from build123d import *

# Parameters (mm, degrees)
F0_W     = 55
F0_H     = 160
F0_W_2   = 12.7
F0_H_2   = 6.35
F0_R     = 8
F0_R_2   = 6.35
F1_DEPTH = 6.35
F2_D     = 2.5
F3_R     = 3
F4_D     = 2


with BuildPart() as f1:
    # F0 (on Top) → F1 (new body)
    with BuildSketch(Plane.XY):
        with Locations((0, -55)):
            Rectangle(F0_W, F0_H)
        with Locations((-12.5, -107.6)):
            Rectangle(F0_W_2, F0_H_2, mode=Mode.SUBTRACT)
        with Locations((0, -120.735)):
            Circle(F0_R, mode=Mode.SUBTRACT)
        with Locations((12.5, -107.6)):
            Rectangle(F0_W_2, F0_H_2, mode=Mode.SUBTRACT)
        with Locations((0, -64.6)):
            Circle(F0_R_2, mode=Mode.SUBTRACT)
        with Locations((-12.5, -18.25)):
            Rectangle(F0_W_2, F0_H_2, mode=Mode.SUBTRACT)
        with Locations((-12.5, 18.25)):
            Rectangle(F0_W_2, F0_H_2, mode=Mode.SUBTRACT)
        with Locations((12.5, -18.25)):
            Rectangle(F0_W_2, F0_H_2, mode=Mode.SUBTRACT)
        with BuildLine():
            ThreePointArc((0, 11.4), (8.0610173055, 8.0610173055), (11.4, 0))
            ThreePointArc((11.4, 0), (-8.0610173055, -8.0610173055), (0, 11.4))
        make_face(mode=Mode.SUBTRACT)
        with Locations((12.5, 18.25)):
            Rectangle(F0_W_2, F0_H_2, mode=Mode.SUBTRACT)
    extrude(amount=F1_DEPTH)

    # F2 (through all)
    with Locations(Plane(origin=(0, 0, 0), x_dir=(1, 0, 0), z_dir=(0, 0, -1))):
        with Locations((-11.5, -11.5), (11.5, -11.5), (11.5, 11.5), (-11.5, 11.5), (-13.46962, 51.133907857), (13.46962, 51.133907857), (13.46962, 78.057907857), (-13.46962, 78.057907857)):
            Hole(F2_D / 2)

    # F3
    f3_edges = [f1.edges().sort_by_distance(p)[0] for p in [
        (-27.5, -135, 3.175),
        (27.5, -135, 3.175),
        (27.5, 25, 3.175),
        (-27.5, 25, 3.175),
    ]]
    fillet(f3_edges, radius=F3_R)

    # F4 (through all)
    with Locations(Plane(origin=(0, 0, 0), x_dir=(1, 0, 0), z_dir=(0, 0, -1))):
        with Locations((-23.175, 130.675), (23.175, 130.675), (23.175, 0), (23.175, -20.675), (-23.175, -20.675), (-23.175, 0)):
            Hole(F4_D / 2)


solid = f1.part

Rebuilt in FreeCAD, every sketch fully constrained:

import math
import FreeCAD as App
import Part
import Sketcher


def edges_at(feature, points):
    """Names of the edges that pass closest to the given points."""
    edges = feature.Shape.Edges
    near = lambda p: min(range(len(edges)), key=lambda i: edges[i].distToShape(Part.Vertex(*p))[0])
    return sorted({f"Edge{near(p) + 1}" for p in points})


def add_polygon(sketch, points):
    """Adds a closed chain of lines whose ends are joined by coincident constraints."""
    first, n = sketch.GeometryCount, len(points)
    for a, b in zip(points, points[1:] + points[:1]):
        sketch.addGeometry(Part.LineSegment(App.Vector(*a, 0), App.Vector(*b, 0)), False)
    for i in range(n):
        sketch.addConstraint(Sketcher.Constraint("Coincident", first + i, 2, first + (i + 1) % n, 1))

doc = App.newDocument("Part")
params = doc.addObject("Spreadsheet::Sheet", "Params")
for row, (alias, value) in enumerate([
    ("sketch1_diameter", "16 mm"),
    ("sketch1_diameter2", "12.7 mm"),
    ("sketch1_radius", "11.4 mm"),
    ("sketch1_width", "55 mm"),
    ("sketch1_height", "160 mm"),
    ("pad1_length", "6.35 mm"),
    ("sketch2_diameter", "2.5 mm"),
    ("hole_diameter", "2.5 mm"),
    ("fillet_radius", "3 mm"),
    ("sketch3_diameter", "2 mm"),
    ("hole2_diameter", "2 mm"),
], start=1):
    params.set(f"A{row}", alias)
    params.set(f"B{row}", "=" + value)
    params.setAlias(f"B{row}", alias)

body = doc.addObject("PartDesign::Body", "Body")

# Sketch on XY plane
sketch1 = doc.addObject("Sketcher::SketchObject", "Sketch")
body.addObject(sketch1)
sketch1.AttachmentSupport = (doc.XY_Plane, [""])
sketch1.MapMode = "FlatFace"
add_polygon(sketch1, [(-28, 25), (-28, -135), (28, -135), (28, 25)])  # lines 0-3
add_polygon(sketch1, [(-6, -111), (-19, -111), (-19, -104), (-6, -104)])  # lines 4-7
sketch1.addGeometry(Part.Circle(App.Vector(0, -121, 0), App.Vector(0, 0, 1), 8), False)  # 8
add_polygon(sketch1, [(19, -111), (6, -111), (6, -104), (19, -104)])  # lines 9-12
sketch1.addGeometry(Part.Circle(App.Vector(0, -65, 0), App.Vector(0, 0, 1), 6), False)  # 13
add_polygon(sketch1, [(-6, -21), (-19, -21), (-19, -15), (-6, -15)])  # lines 14-17
add_polygon(sketch1, [(-6, 15), (-19, 15), (-19, 21), (-6, 21)])  # lines 18-21
add_polygon(sketch1, [(19, -21), (6, -21), (6, -15), (19, -15)])  # lines 22-25
sketch1.addGeometry(Part.ArcOfCircle(Part.Circle(App.Vector(0, 0, 0), App.Vector(0, 0, 1), 11), math.radians(90), math.radians(360)), False)  # 26
sketch1.addGeometry(Part.ArcOfCircle(Part.Circle(App.Vector(0, 0, 0), App.Vector(0, 0, 1), 11), math.radians(0), math.radians(90)), False)  # 27
add_polygon(sketch1, [(19, 15), (6, 15), (6, 21), (19, 21)])  # lines 28-31
sketch1.addConstraint([
    Sketcher.Constraint("Tangent", 26, 1, 27, 2),
    Sketcher.Constraint("Coincident", 27, 1, 26, 2),
    Sketcher.Constraint("Vertical", 0),
    Sketcher.Constraint("Horizontal", 1),
    Sketcher.Constraint("Vertical", 2),
    Sketcher.Constraint("Horizontal", 3),
    Sketcher.Constraint("Horizontal", 4),
    Sketcher.Constraint("Vertical", 5),
    Sketcher.Constraint("Horizontal", 6),
    Sketcher.Constraint("Vertical", 7),
    Sketcher.Constraint("Horizontal", 9),
    Sketcher.Constraint("Vertical", 10),
    Sketcher.Constraint("Horizontal", 11),
    Sketcher.Constraint("Vertical", 12),
    Sketcher.Constraint("Horizontal", 14),
    Sketcher.Constraint("Vertical", 15),
    Sketcher.Constraint("Horizontal", 16),
    Sketcher.Constraint("Vertical", 17),
    Sketcher.Constraint("Horizontal", 18),
    Sketcher.Constraint("Vertical", 19),
    Sketcher.Constraint("Horizontal", 20),
    Sketcher.Constraint("Vertical", 21),
    Sketcher.Constraint("Horizontal", 22),
    Sketcher.Constraint("Vertical", 23),
    Sketcher.Constraint("Horizontal", 24),
    Sketcher.Constraint("Vertical", 25),
    Sketcher.Constraint("Horizontal", 28),
    Sketcher.Constraint("Vertical", 29),
    Sketcher.Constraint("Horizontal", 30),
    Sketcher.Constraint("Vertical", 31),
    Sketcher.Constraint("Coincident", 26, 3, -1, 1),
    Sketcher.Constraint("Symmetric", 20, 2, 22, 2, -1, 1),
    Sketcher.Constraint("Symmetric", 18, 2, 24, 2, -1, 1),
    Sketcher.Constraint("Symmetric", 16, 2, 28, 2, -1, 1),
    Sketcher.Constraint("Symmetric", 14, 2, 30, 2, -1, 1),
    Sketcher.Constraint("Symmetric", 7, 2, 9, 2, -2),
    Sketcher.Constraint("Symmetric", 5, 2, 11, 2, -2),
    Sketcher.Constraint("Symmetric", 17, 2, 22, 2, -2),
    Sketcher.Constraint("Symmetric", 15, 2, 24, 2, -2),
    Sketcher.Constraint("PointOnObject", 8, 3, -2),
    Sketcher.Constraint("PointOnObject", 13, 3, -2),
    Sketcher.Constraint("PointOnObject", 26, 1, -2),
    Sketcher.Constraint("PointOnObject", 27, 1, -1),
    Sketcher.Constraint("Vertical", 5, 2, 14, 2),
    Sketcher.Constraint("Vertical", 7, 2, 16, 2),
    Sketcher.Constraint("Equal", 12, 15),
    Sketcher.Constraint("Diameter", 8, 16.0),
    Sketcher.Constraint("Diameter", 13, 12.7),
    Sketcher.Constraint("Radius", 26, 11.4),
    Sketcher.Constraint("DistanceX", 1, 1, 1, 2, 55.0),
    Sketcher.Constraint("DistanceY", 0, 2, 0, 1, 160.0),
    Sketcher.Constraint("DistanceX", 4, 2, 4, 1, 12.7),
    Sketcher.Constraint("DistanceY", 0, 2, -1, 1, 135.0),
    Sketcher.Constraint("DistanceX", 4, 2, 9, 2, 25.0),
    Sketcher.Constraint("DistanceY", 5, 1, 5, 2, 6.35),
    Sketcher.Constraint("DistanceY", 13, 3, -1, 1, 64.6),
    Sketcher.Constraint("DistanceX", 0, 2, -1, 1, 27.5),
    Sketcher.Constraint("DistanceY", 15, 2, 19, 2, 36.5),
    Sketcher.Constraint("DistanceY", 8, 3, 4, 2, 9.96),
    Sketcher.Constraint("DistanceY", 8, 3, -1, 1, 120.735),
])
sketch1.setExpression("Constraints[74]", "Params.sketch1_diameter")
sketch1.setExpression("Constraints[75]", "Params.sketch1_diameter2")
sketch1.setExpression("Constraints[76]", "Params.sketch1_radius")
sketch1.setExpression("Constraints[77]", "Params.sketch1_width")
sketch1.setExpression("Constraints[78]", "Params.sketch1_height")
pad1 = doc.addObject("PartDesign::Pad", "Pad")
body.addObject(pad1)
pad1.Profile = sketch1
pad1.setExpression("Length", "Params.pad1_length")

# Sketch on XY plane
sketch2 = doc.addObject("Sketcher::SketchObject", "Sketch001")
body.addObject(sketch2)
sketch2.AttachmentSupport = (doc.XY_Plane, [""])
sketch2.MapMode = "FlatFace"
sketch2.addGeometry([
    Part.Circle(App.Vector(-11.5, 11.5, 0), App.Vector(0, 0, 1), 1.2),  # 0
    Part.Circle(App.Vector(11.5, 11.5, 0), App.Vector(0, 0, 1), 1.2),  # 1
    Part.Circle(App.Vector(11.5, -11.5, 0), App.Vector(0, 0, 1), 1.2),  # 2
    Part.Circle(App.Vector(-11.5, -11.5, 0), App.Vector(0, 0, 1), 1.2),  # 3
    Part.Circle(App.Vector(-13.5, -51.1, 0), App.Vector(0, 0, 1), 1.2),  # 4
    Part.Circle(App.Vector(13.5, -51.1, 0), App.Vector(0, 0, 1), 1.2),  # 5
    Part.Circle(App.Vector(13.5, -78.1, 0), App.Vector(0, 0, 1), 1.2),  # 6
    Part.Circle(App.Vector(-13.5, -78.1, 0), App.Vector(0, 0, 1), 1.2),  # 7
], False)
sketch2.addConstraint([
    Sketcher.Constraint("Equal", 0, 1),
    Sketcher.Constraint("Equal", 1, 2),
    Sketcher.Constraint("Equal", 2, 3),
    Sketcher.Constraint("Equal", 3, 4),
    Sketcher.Constraint("Equal", 4, 5),
    Sketcher.Constraint("Equal", 5, 6),
    Sketcher.Constraint("Equal", 6, 7),
    Sketcher.Constraint("Symmetric", 0, 3, 2, 3, -1, 1),
    Sketcher.Constraint("Symmetric", 1, 3, 3, 3, -1, 1),
    Sketcher.Constraint("Symmetric", 0, 3, 1, 3, -2),
    Sketcher.Constraint("Symmetric", 4, 3, 5, 3, -2),
    Sketcher.Constraint("Symmetric", 6, 3, 7, 3, -2),
    Sketcher.Constraint("Vertical", 5, 3, 6, 3),
    Sketcher.Constraint("Diameter", 0, 2.5),
    Sketcher.Constraint("DistanceX", 0, 3, 1, 3, 23.0),
    Sketcher.Constraint("DistanceY", 2, 3, 1, 3, 23.0),
    Sketcher.Constraint("DistanceY", 6, 3, 5, 3, 26.924),
    Sketcher.Constraint("DistanceX", 4, 3, -1, 1, 13.46962),
    Sketcher.Constraint("DistanceY", 4, 3, -1, 1, 51.133908),
])
sketch2.setExpression("Constraints[13]", "Params.sketch2_diameter")
doc.recompute()
hole = doc.addObject("PartDesign::Hole", "Hole")
body.addObject(hole)
hole.Profile = sketch2
hole.ThreadType = "None"
hole.setExpression("Diameter", "Params.hole_diameter")
hole.DepthType = "ThroughAll"
hole.Reversed = True
doc.recompute()

fillet = doc.addObject("PartDesign::Fillet", "Fillet")
body.addObject(fillet)
fillet.Base = (hole, edges_at(hole, [
    (-27.5, -135, 3.175),
    (27.5, -135, 3.175),
    (27.5, 25, 3.175),
    (-27.5, 25, 3.175),
]))
fillet.setExpression("Radius", "Params.fillet_radius")

# Sketch on XY plane
sketch3 = doc.addObject("Sketcher::SketchObject", "Sketch002")
body.addObject(sketch3)
sketch3.AttachmentSupport = (doc.XY_Plane, [""])
sketch3.MapMode = "FlatFace"
sketch3.addGeometry([
    Part.Circle(App.Vector(-23.2, -130.7, 0), App.Vector(0, 0, 1), 1),  # 0
    Part.Circle(App.Vector(23.2, -130.7, 0), App.Vector(0, 0, 1), 1),  # 1
    Part.Circle(App.Vector(23.2, 0, 0), App.Vector(0, 0, 1), 1),  # 2
    Part.Circle(App.Vector(23.2, 20.7, 0), App.Vector(0, 0, 1), 1),  # 3
    Part.Circle(App.Vector(-23.2, 20.7, 0), App.Vector(0, 0, 1), 1),  # 4
    Part.Circle(App.Vector(-23.2, 0, 0), App.Vector(0, 0, 1), 1),  # 5
], False)
sketch3.addConstraint([
    Sketcher.Constraint("Equal", 0, 1),
    Sketcher.Constraint("Equal", 1, 2),
    Sketcher.Constraint("Equal", 2, 3),
    Sketcher.Constraint("Equal", 3, 4),
    Sketcher.Constraint("Equal", 4, 5),
    Sketcher.Constraint("Symmetric", 2, 3, 5, 3, -1, 1),
    Sketcher.Constraint("Symmetric", 0, 3, 1, 3, -2),
    Sketcher.Constraint("Symmetric", 3, 3, 4, 3, -2),
    Sketcher.Constraint("PointOnObject", 2, 3, -1),
    Sketcher.Constraint("Vertical", 1, 3, 2, 3),
    Sketcher.Constraint("Vertical", 2, 3, 3, 3),
    Sketcher.Constraint("Diameter", 0, 2.0),
    Sketcher.Constraint("DistanceX", 0, 3, 1, 3, 46.35),
    Sketcher.Constraint("DistanceY", 1, 3, 3, 3, 151.35),
    Sketcher.Constraint("DistanceY", 0, 3, -1, 1, 130.675),
])
sketch3.setExpression("Constraints[11]", "Params.sketch3_diameter")
doc.recompute()
hole2 = doc.addObject("PartDesign::Hole", "Hole001")
body.addObject(hole2)
hole2.Profile = sketch3
hole2.ThreadType = "None"
hole2.setExpression("Diameter", "Params.hole2_diameter")
hole2.DepthType = "ThroughAll"
hole2.Reversed = True

doc.recompute()
